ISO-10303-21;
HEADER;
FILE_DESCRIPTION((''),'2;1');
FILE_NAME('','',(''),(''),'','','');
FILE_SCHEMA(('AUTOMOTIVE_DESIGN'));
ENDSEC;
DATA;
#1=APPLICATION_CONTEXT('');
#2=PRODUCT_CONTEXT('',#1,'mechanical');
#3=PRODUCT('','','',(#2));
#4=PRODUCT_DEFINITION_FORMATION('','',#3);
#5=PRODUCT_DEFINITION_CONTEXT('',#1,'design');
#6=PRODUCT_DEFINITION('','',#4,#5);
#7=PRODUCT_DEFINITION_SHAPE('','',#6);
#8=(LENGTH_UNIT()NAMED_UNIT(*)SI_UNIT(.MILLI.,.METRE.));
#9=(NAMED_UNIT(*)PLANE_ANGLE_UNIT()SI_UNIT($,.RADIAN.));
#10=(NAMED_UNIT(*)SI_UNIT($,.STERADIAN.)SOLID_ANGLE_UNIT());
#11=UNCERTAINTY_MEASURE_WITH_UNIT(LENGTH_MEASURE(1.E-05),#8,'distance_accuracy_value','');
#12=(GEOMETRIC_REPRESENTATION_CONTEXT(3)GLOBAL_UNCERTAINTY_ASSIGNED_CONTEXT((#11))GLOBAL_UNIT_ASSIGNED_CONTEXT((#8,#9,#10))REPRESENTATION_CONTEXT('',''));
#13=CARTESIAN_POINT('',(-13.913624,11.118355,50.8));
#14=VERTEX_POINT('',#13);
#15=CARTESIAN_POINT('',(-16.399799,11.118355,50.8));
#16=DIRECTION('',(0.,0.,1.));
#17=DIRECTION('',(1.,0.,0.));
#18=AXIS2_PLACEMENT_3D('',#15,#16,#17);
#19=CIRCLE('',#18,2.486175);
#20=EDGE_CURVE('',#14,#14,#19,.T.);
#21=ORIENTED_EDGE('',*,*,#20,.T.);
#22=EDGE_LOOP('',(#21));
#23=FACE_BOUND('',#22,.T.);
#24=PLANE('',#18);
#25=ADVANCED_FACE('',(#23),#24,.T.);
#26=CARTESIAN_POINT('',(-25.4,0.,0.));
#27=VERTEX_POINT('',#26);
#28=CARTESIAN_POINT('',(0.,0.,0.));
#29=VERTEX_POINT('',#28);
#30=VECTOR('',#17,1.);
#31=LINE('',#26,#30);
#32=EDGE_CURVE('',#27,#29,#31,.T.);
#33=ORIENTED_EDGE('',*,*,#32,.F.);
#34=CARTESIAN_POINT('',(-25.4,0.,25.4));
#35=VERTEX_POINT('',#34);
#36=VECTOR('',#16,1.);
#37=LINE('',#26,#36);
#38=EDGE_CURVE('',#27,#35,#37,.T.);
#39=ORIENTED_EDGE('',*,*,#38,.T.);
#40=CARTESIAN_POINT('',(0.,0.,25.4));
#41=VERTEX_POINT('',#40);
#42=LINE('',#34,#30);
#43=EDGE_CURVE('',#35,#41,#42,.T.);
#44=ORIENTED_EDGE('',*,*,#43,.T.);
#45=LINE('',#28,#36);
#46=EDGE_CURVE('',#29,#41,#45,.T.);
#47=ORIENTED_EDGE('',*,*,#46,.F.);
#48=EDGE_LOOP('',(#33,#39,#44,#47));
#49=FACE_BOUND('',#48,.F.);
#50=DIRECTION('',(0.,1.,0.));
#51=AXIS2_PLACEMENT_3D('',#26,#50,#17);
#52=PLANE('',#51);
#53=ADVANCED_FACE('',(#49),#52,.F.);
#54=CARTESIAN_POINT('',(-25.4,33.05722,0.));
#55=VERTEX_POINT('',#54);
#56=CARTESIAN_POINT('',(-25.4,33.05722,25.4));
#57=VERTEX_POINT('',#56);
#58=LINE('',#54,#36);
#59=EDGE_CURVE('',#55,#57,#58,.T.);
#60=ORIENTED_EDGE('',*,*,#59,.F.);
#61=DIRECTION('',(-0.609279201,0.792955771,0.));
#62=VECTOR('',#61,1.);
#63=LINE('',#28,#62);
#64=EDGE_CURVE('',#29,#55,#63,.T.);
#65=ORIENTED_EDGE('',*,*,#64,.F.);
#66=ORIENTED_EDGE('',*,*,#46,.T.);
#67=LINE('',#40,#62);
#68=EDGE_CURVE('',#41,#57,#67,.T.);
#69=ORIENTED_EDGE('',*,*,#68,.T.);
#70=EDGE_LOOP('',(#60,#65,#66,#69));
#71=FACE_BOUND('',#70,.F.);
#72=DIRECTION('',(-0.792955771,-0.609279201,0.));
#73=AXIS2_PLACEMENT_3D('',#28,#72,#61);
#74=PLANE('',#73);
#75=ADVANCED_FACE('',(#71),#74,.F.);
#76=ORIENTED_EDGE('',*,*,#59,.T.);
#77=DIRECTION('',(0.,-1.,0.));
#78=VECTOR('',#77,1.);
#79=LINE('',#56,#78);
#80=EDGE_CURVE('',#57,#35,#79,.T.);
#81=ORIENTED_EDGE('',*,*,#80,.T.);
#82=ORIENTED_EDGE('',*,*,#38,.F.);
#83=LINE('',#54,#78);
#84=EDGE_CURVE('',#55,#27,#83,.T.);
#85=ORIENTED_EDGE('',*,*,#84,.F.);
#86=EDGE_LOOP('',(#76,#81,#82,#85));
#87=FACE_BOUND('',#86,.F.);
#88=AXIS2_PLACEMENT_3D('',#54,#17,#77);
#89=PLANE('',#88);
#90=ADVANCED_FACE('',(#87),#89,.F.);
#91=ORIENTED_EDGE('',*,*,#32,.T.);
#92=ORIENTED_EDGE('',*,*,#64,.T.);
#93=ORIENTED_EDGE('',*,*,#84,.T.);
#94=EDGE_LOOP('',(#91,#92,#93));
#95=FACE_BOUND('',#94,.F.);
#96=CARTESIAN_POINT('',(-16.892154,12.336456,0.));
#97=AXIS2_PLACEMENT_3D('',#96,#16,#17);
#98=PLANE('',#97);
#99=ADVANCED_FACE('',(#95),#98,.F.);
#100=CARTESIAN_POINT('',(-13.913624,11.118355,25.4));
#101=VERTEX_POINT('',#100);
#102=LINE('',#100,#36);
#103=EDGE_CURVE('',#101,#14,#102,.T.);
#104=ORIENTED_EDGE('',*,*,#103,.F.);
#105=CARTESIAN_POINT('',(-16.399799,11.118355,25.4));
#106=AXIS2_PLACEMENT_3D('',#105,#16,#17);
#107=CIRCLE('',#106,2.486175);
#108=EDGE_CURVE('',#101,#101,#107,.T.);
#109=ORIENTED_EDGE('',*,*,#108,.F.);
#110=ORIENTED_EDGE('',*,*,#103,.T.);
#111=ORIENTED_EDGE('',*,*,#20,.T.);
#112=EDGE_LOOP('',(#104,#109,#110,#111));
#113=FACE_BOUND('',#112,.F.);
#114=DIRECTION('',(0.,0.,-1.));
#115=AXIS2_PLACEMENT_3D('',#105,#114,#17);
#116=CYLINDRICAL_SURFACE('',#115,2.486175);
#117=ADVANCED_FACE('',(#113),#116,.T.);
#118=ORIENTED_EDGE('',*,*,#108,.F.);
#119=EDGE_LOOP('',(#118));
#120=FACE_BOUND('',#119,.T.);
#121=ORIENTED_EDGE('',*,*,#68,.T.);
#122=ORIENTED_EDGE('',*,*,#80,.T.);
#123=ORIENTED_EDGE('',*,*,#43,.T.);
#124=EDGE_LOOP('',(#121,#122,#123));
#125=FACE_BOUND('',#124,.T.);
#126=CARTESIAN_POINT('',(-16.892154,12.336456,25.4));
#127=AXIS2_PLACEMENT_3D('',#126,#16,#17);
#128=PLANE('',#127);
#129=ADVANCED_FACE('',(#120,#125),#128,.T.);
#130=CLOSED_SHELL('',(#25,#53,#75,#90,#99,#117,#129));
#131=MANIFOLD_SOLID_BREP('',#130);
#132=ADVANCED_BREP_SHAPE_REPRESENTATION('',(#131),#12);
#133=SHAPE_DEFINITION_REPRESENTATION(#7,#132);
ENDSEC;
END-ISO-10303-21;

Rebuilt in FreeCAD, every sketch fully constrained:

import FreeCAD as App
import Part
import Sketcher

V = App.Vector
Q = App.Units.Quantity


def add_polygon(sketch, points):
    """Adds a closed chain of lines whose ends are joined by coincident constraints."""
    first, n = sketch.GeometryCount, len(points)
    for a, b in zip(points, points[1:] + points[:1]):
        sketch.addGeometry(Part.LineSegment(App.Vector(*a, 0), App.Vector(*b, 0)), False)
    for i in range(n):
        sketch.addConstraint(Sketcher.Constraint("Coincident", first + i, 2, first + (i + 1) % n, 1))

doc = App.newDocument("Part")
body = doc.addObject("PartDesign::Body", "Body")

sketch1 = body.newObject("Sketcher::SketchObject", "Sketch")
sketch1.AttachmentSupport = (doc.getObject("XY_Plane"), [""])
sketch1.MapMode = "FlatFace"
add_polygon(sketch1, [(-25, 0), (0, 0), (-25, 33)])
sketch1.addConstraint([
    Sketcher.Constraint("Horizontal", 0),
    Sketcher.Constraint("Vertical", 2),
    Sketcher.Constraint("Coincident", 0, 2, -1, 1),
    Sketcher.Constraint("DistanceX", 0, 1, 0, 2, Q("1 in")),
    Sketcher.Constraint("DistanceY", 2, 2, 2, 1, 33.05722),
])
pad1 = body.newObject("PartDesign::Pad", "Pad")
pad1.Profile = sketch1
pad1.Length = Q("1 in")

sketch2 = body.newObject("Sketcher::SketchObject", "Sketch001")
sketch2.AttachmentSupport = (doc.getObject("XY_Plane"), [""])
sketch2.MapMode = "FlatFace"
sketch2.AttachmentOffset = App.Placement(V(0, 0, 1 * 25.4), App.Rotation())
sketch2.addGeometry(Part.Circle(V(-16.4, 11.1, 0), V(0, 0, 1), 2.5), False)
sketch2.addConstraint([
    Sketcher.Constraint("Diameter", 0, 4.97235),
    Sketcher.Constraint("DistanceX", 0, 3, -1, 1, 16.399799),
    Sketcher.Constraint("DistanceY", -1, 1, 0, 3, 11.118355),
])
pad2 = body.newObject("PartDesign::Pad", "Pad001")
pad2.Profile = sketch2
pad2.Length = Q("1 in")

doc.recompute()
